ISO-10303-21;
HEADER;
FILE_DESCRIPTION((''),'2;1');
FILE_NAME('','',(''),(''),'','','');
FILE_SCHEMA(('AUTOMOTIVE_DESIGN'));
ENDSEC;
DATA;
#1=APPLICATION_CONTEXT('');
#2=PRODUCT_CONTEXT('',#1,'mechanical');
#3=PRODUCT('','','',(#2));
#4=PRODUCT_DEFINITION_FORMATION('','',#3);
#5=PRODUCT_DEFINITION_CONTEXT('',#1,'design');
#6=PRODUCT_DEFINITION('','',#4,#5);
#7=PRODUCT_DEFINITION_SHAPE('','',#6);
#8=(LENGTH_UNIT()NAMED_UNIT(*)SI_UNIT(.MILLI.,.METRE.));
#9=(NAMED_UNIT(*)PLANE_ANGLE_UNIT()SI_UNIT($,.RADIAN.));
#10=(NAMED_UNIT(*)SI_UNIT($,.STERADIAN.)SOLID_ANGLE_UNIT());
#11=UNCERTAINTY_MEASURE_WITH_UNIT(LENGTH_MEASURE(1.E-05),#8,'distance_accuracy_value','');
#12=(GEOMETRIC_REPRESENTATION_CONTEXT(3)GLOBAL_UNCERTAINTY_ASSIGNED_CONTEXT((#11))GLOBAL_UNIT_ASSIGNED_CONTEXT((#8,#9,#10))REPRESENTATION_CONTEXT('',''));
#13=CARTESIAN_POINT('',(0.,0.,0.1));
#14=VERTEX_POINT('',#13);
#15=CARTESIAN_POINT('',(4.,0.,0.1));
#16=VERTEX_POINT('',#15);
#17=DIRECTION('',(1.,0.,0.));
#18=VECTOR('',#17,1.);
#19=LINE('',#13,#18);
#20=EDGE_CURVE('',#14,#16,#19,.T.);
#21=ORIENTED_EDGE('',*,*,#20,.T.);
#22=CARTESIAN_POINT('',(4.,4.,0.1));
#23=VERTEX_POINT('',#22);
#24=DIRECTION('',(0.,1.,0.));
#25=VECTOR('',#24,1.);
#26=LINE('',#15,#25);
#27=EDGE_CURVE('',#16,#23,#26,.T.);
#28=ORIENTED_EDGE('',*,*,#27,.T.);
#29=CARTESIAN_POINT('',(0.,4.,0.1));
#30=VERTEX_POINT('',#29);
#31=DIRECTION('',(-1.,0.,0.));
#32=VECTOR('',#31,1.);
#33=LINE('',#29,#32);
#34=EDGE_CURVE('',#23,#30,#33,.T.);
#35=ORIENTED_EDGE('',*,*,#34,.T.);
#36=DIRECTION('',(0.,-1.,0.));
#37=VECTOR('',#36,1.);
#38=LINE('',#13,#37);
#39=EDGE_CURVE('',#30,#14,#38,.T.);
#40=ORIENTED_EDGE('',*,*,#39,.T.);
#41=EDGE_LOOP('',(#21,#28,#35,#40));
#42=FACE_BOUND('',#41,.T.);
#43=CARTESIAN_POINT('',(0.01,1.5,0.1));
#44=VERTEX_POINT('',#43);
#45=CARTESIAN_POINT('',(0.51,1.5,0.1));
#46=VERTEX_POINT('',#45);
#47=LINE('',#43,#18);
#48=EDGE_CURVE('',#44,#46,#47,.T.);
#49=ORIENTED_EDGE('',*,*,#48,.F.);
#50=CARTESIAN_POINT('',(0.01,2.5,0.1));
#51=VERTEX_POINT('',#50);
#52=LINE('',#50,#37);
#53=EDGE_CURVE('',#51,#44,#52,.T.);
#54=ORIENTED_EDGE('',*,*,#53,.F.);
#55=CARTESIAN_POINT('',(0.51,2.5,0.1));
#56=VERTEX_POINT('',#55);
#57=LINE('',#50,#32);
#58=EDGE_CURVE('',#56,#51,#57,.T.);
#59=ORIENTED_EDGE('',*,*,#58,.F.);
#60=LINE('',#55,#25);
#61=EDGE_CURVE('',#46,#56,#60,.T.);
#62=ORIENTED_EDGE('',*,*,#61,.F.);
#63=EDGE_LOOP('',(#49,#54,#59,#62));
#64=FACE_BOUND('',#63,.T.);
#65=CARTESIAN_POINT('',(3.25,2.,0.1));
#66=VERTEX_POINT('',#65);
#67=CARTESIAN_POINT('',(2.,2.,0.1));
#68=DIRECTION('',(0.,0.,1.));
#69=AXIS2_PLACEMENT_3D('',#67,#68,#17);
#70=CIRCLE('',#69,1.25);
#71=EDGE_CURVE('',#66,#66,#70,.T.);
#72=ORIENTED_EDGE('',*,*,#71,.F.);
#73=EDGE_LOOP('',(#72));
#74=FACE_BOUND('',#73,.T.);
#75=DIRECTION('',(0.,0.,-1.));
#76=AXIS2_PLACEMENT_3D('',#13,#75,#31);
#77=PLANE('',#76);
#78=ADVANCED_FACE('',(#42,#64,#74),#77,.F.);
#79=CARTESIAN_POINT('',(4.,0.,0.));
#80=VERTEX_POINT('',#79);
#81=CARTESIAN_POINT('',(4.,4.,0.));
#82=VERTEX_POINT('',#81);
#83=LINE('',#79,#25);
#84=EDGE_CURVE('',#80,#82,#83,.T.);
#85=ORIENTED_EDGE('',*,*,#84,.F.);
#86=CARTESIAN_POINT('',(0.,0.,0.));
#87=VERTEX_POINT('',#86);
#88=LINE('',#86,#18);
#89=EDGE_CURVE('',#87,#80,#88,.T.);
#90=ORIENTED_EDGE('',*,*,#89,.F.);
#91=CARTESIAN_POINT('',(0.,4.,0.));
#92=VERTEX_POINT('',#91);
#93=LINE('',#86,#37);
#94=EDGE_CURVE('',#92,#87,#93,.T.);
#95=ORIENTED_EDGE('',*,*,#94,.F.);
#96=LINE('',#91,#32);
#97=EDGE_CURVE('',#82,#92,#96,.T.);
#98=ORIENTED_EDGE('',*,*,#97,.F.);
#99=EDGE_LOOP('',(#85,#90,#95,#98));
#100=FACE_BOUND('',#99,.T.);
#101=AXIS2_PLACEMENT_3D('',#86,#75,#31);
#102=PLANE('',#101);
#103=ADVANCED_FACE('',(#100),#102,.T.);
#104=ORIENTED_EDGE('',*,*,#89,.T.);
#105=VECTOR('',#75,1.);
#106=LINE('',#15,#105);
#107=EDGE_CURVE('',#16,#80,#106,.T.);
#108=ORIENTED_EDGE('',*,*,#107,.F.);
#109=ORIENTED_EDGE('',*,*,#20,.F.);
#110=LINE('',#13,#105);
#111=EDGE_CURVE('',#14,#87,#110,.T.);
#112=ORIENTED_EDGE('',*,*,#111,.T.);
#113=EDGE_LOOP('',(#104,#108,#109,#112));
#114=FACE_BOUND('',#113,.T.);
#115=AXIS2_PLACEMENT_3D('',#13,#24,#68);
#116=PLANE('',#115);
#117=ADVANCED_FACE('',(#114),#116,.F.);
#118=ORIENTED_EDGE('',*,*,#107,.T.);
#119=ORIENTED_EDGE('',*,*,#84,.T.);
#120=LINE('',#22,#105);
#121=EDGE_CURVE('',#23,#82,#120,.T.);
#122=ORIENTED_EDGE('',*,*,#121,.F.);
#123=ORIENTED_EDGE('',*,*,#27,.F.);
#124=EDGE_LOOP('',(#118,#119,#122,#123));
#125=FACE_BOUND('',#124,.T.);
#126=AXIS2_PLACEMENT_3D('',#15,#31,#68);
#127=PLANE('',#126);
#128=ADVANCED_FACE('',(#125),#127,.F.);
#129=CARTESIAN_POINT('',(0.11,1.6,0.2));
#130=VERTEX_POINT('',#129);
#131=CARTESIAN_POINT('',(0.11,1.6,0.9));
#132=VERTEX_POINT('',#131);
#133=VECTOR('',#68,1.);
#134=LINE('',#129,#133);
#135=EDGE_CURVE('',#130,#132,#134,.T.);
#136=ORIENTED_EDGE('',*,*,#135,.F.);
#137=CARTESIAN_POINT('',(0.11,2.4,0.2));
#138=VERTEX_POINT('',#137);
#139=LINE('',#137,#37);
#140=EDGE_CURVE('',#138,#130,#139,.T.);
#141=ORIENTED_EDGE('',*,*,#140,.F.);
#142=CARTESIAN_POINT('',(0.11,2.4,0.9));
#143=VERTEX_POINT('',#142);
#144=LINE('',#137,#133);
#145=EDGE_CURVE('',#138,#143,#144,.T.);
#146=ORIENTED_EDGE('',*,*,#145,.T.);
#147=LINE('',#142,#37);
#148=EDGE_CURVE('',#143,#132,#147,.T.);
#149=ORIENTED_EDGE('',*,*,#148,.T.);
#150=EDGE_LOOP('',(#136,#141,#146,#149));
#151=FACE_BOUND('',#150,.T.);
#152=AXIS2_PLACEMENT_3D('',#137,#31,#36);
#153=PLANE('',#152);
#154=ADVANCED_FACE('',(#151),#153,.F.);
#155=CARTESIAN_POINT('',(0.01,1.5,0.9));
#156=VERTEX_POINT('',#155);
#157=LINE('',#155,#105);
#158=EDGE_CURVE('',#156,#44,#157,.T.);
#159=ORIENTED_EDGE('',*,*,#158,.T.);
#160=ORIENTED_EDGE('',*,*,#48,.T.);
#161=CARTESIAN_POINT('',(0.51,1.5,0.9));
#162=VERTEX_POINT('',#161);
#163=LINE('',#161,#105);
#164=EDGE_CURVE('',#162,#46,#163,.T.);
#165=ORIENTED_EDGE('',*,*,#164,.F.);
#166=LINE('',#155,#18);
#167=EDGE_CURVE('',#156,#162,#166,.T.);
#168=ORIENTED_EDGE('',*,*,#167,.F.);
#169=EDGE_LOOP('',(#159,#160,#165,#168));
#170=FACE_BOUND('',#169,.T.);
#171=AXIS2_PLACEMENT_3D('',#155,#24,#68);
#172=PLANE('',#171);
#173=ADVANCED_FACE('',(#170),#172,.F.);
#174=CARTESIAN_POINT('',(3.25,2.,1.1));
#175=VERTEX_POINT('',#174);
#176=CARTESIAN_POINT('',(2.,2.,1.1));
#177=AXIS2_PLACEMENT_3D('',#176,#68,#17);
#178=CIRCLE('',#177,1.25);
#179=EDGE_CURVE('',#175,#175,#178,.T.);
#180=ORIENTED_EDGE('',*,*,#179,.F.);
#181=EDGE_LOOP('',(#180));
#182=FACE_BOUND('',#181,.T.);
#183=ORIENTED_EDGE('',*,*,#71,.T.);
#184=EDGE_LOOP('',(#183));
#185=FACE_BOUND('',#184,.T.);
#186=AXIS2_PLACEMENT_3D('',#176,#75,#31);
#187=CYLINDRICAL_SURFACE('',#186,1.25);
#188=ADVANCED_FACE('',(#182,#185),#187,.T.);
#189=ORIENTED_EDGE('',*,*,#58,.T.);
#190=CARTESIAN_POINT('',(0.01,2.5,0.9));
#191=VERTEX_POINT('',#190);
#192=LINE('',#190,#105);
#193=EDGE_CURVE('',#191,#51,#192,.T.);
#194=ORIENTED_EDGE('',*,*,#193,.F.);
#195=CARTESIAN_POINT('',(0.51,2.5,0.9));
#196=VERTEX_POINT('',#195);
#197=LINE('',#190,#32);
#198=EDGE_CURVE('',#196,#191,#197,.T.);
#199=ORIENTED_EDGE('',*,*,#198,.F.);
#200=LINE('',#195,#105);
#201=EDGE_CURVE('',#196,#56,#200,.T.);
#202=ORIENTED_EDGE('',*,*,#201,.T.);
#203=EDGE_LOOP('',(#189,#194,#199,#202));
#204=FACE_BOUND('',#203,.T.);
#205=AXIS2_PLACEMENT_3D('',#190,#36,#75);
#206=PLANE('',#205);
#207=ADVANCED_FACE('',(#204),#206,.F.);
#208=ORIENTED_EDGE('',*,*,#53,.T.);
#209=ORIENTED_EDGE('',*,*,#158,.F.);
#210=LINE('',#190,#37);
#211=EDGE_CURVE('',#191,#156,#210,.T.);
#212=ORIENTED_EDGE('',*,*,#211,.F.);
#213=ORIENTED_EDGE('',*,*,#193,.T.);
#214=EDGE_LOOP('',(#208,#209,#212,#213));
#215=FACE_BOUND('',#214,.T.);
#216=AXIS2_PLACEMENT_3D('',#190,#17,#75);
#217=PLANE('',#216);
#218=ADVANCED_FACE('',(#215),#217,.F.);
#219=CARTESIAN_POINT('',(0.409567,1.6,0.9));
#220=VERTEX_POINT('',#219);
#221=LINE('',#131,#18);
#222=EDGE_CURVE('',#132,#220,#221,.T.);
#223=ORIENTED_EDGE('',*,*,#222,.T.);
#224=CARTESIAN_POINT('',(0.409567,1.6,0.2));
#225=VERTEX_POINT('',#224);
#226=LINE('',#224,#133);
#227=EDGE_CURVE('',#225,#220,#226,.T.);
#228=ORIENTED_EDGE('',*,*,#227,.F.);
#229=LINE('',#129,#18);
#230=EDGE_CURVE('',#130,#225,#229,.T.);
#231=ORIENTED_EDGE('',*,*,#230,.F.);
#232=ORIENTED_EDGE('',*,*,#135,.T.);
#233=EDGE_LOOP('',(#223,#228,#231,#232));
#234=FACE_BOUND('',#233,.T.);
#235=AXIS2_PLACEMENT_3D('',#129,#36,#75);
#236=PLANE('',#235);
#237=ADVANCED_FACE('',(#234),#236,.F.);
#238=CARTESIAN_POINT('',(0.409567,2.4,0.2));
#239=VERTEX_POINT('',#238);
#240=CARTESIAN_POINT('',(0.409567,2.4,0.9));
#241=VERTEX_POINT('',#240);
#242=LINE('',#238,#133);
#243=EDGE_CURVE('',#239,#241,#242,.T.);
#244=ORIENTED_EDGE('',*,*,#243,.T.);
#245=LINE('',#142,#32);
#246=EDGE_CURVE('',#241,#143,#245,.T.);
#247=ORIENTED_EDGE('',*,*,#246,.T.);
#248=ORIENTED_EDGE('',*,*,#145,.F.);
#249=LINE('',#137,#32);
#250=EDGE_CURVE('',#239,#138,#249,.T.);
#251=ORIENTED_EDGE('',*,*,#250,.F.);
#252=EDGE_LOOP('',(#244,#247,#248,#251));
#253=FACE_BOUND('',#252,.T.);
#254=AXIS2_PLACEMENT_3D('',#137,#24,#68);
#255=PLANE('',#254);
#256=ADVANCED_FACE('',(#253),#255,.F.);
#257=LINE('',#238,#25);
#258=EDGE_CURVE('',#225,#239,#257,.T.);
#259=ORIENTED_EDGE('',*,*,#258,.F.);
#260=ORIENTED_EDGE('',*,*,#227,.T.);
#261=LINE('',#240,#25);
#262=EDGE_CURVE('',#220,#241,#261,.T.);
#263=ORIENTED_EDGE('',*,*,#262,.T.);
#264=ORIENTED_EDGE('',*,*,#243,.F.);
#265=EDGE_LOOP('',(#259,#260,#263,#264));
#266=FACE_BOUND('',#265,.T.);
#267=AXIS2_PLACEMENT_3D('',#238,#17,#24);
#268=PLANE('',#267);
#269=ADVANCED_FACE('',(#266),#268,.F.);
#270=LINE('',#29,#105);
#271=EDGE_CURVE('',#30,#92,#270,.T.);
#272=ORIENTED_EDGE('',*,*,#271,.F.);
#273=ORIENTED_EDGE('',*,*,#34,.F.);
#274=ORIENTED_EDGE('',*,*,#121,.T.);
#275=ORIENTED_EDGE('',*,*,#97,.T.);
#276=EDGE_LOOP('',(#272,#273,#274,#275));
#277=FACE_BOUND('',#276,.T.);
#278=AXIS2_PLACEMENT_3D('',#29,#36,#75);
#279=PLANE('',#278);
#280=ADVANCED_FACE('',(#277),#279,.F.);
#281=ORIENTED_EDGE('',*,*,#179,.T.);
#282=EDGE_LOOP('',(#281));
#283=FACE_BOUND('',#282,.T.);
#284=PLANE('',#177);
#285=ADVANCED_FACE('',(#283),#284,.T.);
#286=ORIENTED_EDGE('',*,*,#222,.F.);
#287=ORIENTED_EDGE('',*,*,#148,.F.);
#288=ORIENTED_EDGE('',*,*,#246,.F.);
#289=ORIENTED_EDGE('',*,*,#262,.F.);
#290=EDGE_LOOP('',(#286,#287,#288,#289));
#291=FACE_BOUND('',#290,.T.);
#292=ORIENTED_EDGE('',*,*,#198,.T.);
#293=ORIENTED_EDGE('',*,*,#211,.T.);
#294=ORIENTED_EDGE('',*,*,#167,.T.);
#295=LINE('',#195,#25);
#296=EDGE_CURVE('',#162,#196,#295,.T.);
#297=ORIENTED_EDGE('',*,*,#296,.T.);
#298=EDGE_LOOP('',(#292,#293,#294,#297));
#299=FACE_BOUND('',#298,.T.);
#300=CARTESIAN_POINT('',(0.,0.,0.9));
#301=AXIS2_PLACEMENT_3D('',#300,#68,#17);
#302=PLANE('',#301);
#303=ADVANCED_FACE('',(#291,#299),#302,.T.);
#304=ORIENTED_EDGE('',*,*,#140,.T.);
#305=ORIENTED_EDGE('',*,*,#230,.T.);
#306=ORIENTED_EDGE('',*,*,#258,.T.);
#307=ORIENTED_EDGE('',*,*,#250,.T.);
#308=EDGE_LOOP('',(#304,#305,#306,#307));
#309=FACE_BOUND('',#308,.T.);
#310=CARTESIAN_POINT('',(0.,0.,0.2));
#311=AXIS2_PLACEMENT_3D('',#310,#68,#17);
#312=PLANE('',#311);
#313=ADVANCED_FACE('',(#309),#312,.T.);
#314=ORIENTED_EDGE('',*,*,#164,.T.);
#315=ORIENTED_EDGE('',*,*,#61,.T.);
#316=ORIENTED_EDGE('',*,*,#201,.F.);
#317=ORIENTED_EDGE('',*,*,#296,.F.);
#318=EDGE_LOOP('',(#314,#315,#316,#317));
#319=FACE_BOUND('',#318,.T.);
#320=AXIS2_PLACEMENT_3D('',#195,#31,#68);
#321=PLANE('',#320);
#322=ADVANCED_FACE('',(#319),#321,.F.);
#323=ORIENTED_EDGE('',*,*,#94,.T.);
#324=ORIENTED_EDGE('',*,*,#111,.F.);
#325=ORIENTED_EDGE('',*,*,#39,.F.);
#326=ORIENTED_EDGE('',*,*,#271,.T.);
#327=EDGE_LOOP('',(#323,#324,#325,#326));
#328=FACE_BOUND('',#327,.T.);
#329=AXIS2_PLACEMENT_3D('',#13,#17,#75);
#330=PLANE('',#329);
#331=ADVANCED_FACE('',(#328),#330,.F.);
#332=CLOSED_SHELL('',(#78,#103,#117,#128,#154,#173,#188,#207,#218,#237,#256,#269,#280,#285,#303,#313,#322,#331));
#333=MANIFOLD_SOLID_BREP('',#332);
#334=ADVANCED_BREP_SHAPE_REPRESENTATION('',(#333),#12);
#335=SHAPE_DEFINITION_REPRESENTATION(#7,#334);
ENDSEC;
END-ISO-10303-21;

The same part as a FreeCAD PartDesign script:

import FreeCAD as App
import Part
import Sketcher

V = App.Vector

doc = App.newDocument("Part")
body = doc.addObject("PartDesign::Body", "Body")

sketch1 = body.newObject("Sketcher::SketchObject", "Sketch")
sketch1.AttachmentSupport = (doc.getObject("XY_Plane"), [""])
sketch1.MapMode = "FlatFace"
sketch1.addGeometry([
    Part.LineSegment(V(0, 4, 0), V(0, 0, 0)),
    Part.LineSegment(V(0, 0, 0), V(4, 0, 0)),
    Part.LineSegment(V(4, 0, 0), V(4, 4, 0)),
    Part.LineSegment(V(4, 4, 0), V(0, 4, 0)),
], False)
sketch1.addConstraint([
    Sketcher.Constraint("Coincident", 0, 2, 1, 1),
    Sketcher.Constraint("Coincident", 1, 2, 2, 1),
    Sketcher.Constraint("Coincident", 2, 2, 3, 1),
    Sketcher.Constraint("Coincident", 3, 2, 0, 1),
    Sketcher.Constraint("Vertical", 0),
    Sketcher.Constraint("Horizontal", 1),
    Sketcher.Constraint("Vertical", 2),
    Sketcher.Constraint("Horizontal", 3),
    Sketcher.Constraint("Coincident", 0, 2, -1, 1),
    Sketcher.Constraint("Equal", 3, 0),
    Sketcher.Constraint("DistanceX", 1, 1, 1, 2, 4.0),
])
pad1 = body.newObject("PartDesign::Pad", "Pad")
pad1.Profile = sketch1
pad1.Length = 0.1

sketch2 = body.newObject("Sketcher::SketchObject", "Sketch001")
sketch2.AttachmentSupport = (doc.getObject("XY_Plane"), [""])
sketch2.MapMode = "FlatFace"
sketch2.AttachmentOffset = App.Placement(V(0, 0, 0.1), App.Rotation())
sketch2.addGeometry(Part.Circle(V(2, 2, 0), V(0, 0, 1), 1.2), False)
sketch2.addConstraint([
    Sketcher.Constraint("Diameter", 0, 2.5),
    Sketcher.Constraint("DistanceX", -1, 1, 0, 3, 2.0),
    Sketcher.Constraint("DistanceY", -1, 1, 0, 3, 2.0),
])
pad2 = body.newObject("PartDesign::Pad", "Pad001")
pad2.Profile = sketch2
pad2.Length = 1

sketch3 = body.newObject("Sketcher::SketchObject", "Sketch002")
sketch3.AttachmentSupport = (doc.getObject("XY_Plane"), [""])
sketch3.MapMode = "FlatFace"
sketch3.AttachmentOffset = App.Placement(V(0, 0, 0.1), App.Rotation())
sketch3.addGeometry([
    Part.LineSegment(V(0, 2.5, 0), V(0, 1.5, 0)),
    Part.LineSegment(V(0, 1.5, 0), V(0.5, 1.5, 0)),
    Part.LineSegment(V(0.5, 1.5, 0), V(0.5, 2.5, 0)),
    Part.LineSegment(V(0.5, 2.5, 0), V(0, 2.5, 0)),
], False)
sketch3.addConstraint([
    Sketcher.Constraint("Coincident", 0, 2, 1, 1),
    Sketcher.Constraint("Coincident", 1, 2, 2, 1),
    Sketcher.Constraint("Coincident", 2, 2, 3, 1),
    Sketcher.Constraint("Coincident", 3, 2, 0, 1),
    Sketcher.Constraint("Vertical", 0),
    Sketcher.Constraint("Horizontal", 1),
    Sketcher.Constraint("Vertical", 2),
    Sketcher.Constraint("Horizontal", 3),
    Sketcher.Constraint("DistanceY", 0, 2, 0, 1, 1.0),
    Sketcher.Constraint("DistanceX", 1, 1, 1, 2, 0.5),
    Sketcher.Constraint("DistanceY", -1, 1, 0, 2, 1.5),
    Sketcher.Constraint("DistanceX", -1, 1, 0, 2, 0.01),
])
pad3 = body.newObject("PartDesign::Pad", "Pad002")
pad3.Profile = sketch3
pad3.Length = 0.8

sketch4 = body.newObject("Sketcher::SketchObject", "Sketch003")
sketch4.AttachmentSupport = (doc.getObject("XY_Plane"), [""])
sketch4.MapMode = "FlatFace"
sketch4.AttachmentOffset = App.Placement(V(0, 0, 0.9), App.Rotation())
sketch4.addGeometry([
    Part.LineSegment(V(0.11, 2.4, 0), V(0.11, 1.6, 0)),
    Part.LineSegment(V(0.11, 1.6, 0), V(0.41, 1.6, 0)),
    Part.LineSegment(V(0.41, 1.6, 0), V(0.41, 2.4, 0)),
    Part.LineSegment(V(0.41, 2.4, 0), V(0.11, 2.4, 0)),
], False)
sketch4.addConstraint([
    Sketcher.Constraint("Coincident", 0, 2, 1, 1),
    Sketcher.Constraint("Coincident", 1, 2, 2, 1),
    Sketcher.Constraint("Coincident", 2, 2, 3, 1),
    Sketcher.Constraint("Coincident", 3, 2, 0, 1),
    Sketcher.Constraint("Vertical", 0),
    Sketcher.Constraint("Horizontal", 1),
    Sketcher.Constraint("Vertical", 2),
    Sketcher.Constraint("Horizontal", 3),
    Sketcher.Constraint("DistanceY", 0, 2, 0, 1, 0.8),
    Sketcher.Constraint("DistanceY", -1, 1, 0, 2, 1.6),
    Sketcher.Constraint("DistanceX", -1, 1, 0, 2, 0.11),
    Sketcher.Constraint("DistanceX", 1, 1, 1, 2, 0.299567),
])
pocket1 = body.newObject("PartDesign::Pocket", "Pocket")
pocket1.Profile = sketch4
pocket1.Length = 0.7

doc.recompute()
